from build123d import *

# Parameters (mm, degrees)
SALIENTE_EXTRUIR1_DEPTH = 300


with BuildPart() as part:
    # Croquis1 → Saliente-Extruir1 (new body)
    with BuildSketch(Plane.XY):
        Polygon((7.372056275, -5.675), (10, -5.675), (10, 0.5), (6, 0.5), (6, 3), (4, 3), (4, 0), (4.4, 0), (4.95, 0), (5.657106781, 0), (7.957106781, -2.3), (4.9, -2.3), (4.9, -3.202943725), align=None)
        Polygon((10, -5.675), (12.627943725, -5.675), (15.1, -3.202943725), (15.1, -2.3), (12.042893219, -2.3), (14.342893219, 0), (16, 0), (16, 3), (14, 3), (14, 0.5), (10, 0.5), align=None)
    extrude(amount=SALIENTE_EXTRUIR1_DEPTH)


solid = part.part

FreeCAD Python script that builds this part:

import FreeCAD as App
import Part
import Sketcher


def add_polygon(sketch, points):
    """Adds a closed chain of lines whose ends are joined by coincident constraints."""
    first, n = sketch.GeometryCount, len(points)
    for a, b in zip(points, points[1:] + points[:1]):
        sketch.addGeometry(Part.LineSegment(App.Vector(*a, 0), App.Vector(*b, 0)), False)
    for i in range(n):
        sketch.addConstraint(Sketcher.Constraint("Coincident", first + i, 2, first + (i + 1) % n, 1))

doc = App.newDocument("Part")
body = doc.addObject("PartDesign::Body", "Body")

# Sketch on XY plane
sketch1 = doc.addObject("Sketcher::SketchObject", "Sketch")
body.addObject(sketch1)
sketch1.AttachmentSupport = (doc.XY_Plane, [""])
sketch1.MapMode = "FlatFace"
add_polygon(sketch1, [(7.372056, -5.675), (12.627944, -5.675), (15.1, -3.202944), (15.1, -2.3), (12.042893, -2.3), (14.342893, 0), (16, 0), (16, 3), (14, 3), (14, 0.5), (6, 0.5), (6, 3), (4, 3), (4, 0), (5.657107, 0), (7.957107, -2.3), (4.9, -2.3), (4.9, -3.202944)])  # lines 0-17
sketch1.addConstraint([
    Sketcher.Constraint("Horizontal", 0),
    Sketcher.Constraint("Vertical", 2),
    Sketcher.Constraint("Horizontal", 3),
    Sketcher.Constraint("Horizontal", 5),
    Sketcher.Constraint("Vertical", 6),
    Sketcher.Constraint("Horizontal", 7),
    Sketcher.Constraint("Vertical", 8),
    Sketcher.Constraint("Horizontal", 9),
    Sketcher.Constraint("Vertical", 10),
    Sketcher.Constraint("Horizontal", 11),
    Sketcher.Constraint("Vertical", 12),
    Sketcher.Constraint("Horizontal", 13),
    Sketcher.Constraint("Horizontal", 15),
    Sketcher.Constraint("Vertical", 16),
    Sketcher.Constraint("PointOnObject", 4, 2, -1),
    Sketcher.Constraint("PointOnObject", 12, 2, -1),
    Sketcher.Constraint("Parallel", 1, 4),
    Sketcher.Constraint("Perpendicular", 4, 14),
    Sketcher.Constraint("Parallel", 14, 17),
    Sketcher.Constraint("Horizontal", 7, 2, 10, 2),
    Sketcher.Constraint("Horizontal", 3, 2, 14, 2),
    Sketcher.Constraint("Horizontal", 1, 2, 16, 2),
    Sketcher.Constraint("Equal", 7, 11),
    Sketcher.Constraint("Equal", 5, 13),
    Sketcher.Constraint("Equal", 3, 15),
    Sketcher.Constraint("Equal", 4, 14),
    Sketcher.Constraint("DistanceX", 7, 2, 7, 1, 2.0),
    Sketcher.Constraint("DistanceX", 9, 2, 9, 1, 8.0),
    Sketcher.Constraint("DistanceY", 6, 1, 6, 2, 3.0),
    Sketcher.Constraint("DistanceY", 8, 2, 8, 1, 2.5),
    Sketcher.Constraint("DistanceX", -1, 1, 5, 2, 16.0),
    Sketcher.Constraint("DistanceX", -1, 1, 1, 2, 15.1),
    Sketcher.Constraint("DistanceY", 2, 2, -1, 1, 2.3),
    Sketcher.Constraint("DistanceY", 0, 2, -1, 1, 5.675),
    Sketcher.Constraint("DistanceX", 0, 1, 0, 2, 5.255887),
    Sketcher.Constraint("DistanceX", 3, 2, 3, 1, 3.057107),
])
pad1 = doc.addObject("PartDesign::Pad", "Pad")
body.addObject(pad1)
pad1.Profile = sketch1
pad1.Length = 300

doc.recompute()
